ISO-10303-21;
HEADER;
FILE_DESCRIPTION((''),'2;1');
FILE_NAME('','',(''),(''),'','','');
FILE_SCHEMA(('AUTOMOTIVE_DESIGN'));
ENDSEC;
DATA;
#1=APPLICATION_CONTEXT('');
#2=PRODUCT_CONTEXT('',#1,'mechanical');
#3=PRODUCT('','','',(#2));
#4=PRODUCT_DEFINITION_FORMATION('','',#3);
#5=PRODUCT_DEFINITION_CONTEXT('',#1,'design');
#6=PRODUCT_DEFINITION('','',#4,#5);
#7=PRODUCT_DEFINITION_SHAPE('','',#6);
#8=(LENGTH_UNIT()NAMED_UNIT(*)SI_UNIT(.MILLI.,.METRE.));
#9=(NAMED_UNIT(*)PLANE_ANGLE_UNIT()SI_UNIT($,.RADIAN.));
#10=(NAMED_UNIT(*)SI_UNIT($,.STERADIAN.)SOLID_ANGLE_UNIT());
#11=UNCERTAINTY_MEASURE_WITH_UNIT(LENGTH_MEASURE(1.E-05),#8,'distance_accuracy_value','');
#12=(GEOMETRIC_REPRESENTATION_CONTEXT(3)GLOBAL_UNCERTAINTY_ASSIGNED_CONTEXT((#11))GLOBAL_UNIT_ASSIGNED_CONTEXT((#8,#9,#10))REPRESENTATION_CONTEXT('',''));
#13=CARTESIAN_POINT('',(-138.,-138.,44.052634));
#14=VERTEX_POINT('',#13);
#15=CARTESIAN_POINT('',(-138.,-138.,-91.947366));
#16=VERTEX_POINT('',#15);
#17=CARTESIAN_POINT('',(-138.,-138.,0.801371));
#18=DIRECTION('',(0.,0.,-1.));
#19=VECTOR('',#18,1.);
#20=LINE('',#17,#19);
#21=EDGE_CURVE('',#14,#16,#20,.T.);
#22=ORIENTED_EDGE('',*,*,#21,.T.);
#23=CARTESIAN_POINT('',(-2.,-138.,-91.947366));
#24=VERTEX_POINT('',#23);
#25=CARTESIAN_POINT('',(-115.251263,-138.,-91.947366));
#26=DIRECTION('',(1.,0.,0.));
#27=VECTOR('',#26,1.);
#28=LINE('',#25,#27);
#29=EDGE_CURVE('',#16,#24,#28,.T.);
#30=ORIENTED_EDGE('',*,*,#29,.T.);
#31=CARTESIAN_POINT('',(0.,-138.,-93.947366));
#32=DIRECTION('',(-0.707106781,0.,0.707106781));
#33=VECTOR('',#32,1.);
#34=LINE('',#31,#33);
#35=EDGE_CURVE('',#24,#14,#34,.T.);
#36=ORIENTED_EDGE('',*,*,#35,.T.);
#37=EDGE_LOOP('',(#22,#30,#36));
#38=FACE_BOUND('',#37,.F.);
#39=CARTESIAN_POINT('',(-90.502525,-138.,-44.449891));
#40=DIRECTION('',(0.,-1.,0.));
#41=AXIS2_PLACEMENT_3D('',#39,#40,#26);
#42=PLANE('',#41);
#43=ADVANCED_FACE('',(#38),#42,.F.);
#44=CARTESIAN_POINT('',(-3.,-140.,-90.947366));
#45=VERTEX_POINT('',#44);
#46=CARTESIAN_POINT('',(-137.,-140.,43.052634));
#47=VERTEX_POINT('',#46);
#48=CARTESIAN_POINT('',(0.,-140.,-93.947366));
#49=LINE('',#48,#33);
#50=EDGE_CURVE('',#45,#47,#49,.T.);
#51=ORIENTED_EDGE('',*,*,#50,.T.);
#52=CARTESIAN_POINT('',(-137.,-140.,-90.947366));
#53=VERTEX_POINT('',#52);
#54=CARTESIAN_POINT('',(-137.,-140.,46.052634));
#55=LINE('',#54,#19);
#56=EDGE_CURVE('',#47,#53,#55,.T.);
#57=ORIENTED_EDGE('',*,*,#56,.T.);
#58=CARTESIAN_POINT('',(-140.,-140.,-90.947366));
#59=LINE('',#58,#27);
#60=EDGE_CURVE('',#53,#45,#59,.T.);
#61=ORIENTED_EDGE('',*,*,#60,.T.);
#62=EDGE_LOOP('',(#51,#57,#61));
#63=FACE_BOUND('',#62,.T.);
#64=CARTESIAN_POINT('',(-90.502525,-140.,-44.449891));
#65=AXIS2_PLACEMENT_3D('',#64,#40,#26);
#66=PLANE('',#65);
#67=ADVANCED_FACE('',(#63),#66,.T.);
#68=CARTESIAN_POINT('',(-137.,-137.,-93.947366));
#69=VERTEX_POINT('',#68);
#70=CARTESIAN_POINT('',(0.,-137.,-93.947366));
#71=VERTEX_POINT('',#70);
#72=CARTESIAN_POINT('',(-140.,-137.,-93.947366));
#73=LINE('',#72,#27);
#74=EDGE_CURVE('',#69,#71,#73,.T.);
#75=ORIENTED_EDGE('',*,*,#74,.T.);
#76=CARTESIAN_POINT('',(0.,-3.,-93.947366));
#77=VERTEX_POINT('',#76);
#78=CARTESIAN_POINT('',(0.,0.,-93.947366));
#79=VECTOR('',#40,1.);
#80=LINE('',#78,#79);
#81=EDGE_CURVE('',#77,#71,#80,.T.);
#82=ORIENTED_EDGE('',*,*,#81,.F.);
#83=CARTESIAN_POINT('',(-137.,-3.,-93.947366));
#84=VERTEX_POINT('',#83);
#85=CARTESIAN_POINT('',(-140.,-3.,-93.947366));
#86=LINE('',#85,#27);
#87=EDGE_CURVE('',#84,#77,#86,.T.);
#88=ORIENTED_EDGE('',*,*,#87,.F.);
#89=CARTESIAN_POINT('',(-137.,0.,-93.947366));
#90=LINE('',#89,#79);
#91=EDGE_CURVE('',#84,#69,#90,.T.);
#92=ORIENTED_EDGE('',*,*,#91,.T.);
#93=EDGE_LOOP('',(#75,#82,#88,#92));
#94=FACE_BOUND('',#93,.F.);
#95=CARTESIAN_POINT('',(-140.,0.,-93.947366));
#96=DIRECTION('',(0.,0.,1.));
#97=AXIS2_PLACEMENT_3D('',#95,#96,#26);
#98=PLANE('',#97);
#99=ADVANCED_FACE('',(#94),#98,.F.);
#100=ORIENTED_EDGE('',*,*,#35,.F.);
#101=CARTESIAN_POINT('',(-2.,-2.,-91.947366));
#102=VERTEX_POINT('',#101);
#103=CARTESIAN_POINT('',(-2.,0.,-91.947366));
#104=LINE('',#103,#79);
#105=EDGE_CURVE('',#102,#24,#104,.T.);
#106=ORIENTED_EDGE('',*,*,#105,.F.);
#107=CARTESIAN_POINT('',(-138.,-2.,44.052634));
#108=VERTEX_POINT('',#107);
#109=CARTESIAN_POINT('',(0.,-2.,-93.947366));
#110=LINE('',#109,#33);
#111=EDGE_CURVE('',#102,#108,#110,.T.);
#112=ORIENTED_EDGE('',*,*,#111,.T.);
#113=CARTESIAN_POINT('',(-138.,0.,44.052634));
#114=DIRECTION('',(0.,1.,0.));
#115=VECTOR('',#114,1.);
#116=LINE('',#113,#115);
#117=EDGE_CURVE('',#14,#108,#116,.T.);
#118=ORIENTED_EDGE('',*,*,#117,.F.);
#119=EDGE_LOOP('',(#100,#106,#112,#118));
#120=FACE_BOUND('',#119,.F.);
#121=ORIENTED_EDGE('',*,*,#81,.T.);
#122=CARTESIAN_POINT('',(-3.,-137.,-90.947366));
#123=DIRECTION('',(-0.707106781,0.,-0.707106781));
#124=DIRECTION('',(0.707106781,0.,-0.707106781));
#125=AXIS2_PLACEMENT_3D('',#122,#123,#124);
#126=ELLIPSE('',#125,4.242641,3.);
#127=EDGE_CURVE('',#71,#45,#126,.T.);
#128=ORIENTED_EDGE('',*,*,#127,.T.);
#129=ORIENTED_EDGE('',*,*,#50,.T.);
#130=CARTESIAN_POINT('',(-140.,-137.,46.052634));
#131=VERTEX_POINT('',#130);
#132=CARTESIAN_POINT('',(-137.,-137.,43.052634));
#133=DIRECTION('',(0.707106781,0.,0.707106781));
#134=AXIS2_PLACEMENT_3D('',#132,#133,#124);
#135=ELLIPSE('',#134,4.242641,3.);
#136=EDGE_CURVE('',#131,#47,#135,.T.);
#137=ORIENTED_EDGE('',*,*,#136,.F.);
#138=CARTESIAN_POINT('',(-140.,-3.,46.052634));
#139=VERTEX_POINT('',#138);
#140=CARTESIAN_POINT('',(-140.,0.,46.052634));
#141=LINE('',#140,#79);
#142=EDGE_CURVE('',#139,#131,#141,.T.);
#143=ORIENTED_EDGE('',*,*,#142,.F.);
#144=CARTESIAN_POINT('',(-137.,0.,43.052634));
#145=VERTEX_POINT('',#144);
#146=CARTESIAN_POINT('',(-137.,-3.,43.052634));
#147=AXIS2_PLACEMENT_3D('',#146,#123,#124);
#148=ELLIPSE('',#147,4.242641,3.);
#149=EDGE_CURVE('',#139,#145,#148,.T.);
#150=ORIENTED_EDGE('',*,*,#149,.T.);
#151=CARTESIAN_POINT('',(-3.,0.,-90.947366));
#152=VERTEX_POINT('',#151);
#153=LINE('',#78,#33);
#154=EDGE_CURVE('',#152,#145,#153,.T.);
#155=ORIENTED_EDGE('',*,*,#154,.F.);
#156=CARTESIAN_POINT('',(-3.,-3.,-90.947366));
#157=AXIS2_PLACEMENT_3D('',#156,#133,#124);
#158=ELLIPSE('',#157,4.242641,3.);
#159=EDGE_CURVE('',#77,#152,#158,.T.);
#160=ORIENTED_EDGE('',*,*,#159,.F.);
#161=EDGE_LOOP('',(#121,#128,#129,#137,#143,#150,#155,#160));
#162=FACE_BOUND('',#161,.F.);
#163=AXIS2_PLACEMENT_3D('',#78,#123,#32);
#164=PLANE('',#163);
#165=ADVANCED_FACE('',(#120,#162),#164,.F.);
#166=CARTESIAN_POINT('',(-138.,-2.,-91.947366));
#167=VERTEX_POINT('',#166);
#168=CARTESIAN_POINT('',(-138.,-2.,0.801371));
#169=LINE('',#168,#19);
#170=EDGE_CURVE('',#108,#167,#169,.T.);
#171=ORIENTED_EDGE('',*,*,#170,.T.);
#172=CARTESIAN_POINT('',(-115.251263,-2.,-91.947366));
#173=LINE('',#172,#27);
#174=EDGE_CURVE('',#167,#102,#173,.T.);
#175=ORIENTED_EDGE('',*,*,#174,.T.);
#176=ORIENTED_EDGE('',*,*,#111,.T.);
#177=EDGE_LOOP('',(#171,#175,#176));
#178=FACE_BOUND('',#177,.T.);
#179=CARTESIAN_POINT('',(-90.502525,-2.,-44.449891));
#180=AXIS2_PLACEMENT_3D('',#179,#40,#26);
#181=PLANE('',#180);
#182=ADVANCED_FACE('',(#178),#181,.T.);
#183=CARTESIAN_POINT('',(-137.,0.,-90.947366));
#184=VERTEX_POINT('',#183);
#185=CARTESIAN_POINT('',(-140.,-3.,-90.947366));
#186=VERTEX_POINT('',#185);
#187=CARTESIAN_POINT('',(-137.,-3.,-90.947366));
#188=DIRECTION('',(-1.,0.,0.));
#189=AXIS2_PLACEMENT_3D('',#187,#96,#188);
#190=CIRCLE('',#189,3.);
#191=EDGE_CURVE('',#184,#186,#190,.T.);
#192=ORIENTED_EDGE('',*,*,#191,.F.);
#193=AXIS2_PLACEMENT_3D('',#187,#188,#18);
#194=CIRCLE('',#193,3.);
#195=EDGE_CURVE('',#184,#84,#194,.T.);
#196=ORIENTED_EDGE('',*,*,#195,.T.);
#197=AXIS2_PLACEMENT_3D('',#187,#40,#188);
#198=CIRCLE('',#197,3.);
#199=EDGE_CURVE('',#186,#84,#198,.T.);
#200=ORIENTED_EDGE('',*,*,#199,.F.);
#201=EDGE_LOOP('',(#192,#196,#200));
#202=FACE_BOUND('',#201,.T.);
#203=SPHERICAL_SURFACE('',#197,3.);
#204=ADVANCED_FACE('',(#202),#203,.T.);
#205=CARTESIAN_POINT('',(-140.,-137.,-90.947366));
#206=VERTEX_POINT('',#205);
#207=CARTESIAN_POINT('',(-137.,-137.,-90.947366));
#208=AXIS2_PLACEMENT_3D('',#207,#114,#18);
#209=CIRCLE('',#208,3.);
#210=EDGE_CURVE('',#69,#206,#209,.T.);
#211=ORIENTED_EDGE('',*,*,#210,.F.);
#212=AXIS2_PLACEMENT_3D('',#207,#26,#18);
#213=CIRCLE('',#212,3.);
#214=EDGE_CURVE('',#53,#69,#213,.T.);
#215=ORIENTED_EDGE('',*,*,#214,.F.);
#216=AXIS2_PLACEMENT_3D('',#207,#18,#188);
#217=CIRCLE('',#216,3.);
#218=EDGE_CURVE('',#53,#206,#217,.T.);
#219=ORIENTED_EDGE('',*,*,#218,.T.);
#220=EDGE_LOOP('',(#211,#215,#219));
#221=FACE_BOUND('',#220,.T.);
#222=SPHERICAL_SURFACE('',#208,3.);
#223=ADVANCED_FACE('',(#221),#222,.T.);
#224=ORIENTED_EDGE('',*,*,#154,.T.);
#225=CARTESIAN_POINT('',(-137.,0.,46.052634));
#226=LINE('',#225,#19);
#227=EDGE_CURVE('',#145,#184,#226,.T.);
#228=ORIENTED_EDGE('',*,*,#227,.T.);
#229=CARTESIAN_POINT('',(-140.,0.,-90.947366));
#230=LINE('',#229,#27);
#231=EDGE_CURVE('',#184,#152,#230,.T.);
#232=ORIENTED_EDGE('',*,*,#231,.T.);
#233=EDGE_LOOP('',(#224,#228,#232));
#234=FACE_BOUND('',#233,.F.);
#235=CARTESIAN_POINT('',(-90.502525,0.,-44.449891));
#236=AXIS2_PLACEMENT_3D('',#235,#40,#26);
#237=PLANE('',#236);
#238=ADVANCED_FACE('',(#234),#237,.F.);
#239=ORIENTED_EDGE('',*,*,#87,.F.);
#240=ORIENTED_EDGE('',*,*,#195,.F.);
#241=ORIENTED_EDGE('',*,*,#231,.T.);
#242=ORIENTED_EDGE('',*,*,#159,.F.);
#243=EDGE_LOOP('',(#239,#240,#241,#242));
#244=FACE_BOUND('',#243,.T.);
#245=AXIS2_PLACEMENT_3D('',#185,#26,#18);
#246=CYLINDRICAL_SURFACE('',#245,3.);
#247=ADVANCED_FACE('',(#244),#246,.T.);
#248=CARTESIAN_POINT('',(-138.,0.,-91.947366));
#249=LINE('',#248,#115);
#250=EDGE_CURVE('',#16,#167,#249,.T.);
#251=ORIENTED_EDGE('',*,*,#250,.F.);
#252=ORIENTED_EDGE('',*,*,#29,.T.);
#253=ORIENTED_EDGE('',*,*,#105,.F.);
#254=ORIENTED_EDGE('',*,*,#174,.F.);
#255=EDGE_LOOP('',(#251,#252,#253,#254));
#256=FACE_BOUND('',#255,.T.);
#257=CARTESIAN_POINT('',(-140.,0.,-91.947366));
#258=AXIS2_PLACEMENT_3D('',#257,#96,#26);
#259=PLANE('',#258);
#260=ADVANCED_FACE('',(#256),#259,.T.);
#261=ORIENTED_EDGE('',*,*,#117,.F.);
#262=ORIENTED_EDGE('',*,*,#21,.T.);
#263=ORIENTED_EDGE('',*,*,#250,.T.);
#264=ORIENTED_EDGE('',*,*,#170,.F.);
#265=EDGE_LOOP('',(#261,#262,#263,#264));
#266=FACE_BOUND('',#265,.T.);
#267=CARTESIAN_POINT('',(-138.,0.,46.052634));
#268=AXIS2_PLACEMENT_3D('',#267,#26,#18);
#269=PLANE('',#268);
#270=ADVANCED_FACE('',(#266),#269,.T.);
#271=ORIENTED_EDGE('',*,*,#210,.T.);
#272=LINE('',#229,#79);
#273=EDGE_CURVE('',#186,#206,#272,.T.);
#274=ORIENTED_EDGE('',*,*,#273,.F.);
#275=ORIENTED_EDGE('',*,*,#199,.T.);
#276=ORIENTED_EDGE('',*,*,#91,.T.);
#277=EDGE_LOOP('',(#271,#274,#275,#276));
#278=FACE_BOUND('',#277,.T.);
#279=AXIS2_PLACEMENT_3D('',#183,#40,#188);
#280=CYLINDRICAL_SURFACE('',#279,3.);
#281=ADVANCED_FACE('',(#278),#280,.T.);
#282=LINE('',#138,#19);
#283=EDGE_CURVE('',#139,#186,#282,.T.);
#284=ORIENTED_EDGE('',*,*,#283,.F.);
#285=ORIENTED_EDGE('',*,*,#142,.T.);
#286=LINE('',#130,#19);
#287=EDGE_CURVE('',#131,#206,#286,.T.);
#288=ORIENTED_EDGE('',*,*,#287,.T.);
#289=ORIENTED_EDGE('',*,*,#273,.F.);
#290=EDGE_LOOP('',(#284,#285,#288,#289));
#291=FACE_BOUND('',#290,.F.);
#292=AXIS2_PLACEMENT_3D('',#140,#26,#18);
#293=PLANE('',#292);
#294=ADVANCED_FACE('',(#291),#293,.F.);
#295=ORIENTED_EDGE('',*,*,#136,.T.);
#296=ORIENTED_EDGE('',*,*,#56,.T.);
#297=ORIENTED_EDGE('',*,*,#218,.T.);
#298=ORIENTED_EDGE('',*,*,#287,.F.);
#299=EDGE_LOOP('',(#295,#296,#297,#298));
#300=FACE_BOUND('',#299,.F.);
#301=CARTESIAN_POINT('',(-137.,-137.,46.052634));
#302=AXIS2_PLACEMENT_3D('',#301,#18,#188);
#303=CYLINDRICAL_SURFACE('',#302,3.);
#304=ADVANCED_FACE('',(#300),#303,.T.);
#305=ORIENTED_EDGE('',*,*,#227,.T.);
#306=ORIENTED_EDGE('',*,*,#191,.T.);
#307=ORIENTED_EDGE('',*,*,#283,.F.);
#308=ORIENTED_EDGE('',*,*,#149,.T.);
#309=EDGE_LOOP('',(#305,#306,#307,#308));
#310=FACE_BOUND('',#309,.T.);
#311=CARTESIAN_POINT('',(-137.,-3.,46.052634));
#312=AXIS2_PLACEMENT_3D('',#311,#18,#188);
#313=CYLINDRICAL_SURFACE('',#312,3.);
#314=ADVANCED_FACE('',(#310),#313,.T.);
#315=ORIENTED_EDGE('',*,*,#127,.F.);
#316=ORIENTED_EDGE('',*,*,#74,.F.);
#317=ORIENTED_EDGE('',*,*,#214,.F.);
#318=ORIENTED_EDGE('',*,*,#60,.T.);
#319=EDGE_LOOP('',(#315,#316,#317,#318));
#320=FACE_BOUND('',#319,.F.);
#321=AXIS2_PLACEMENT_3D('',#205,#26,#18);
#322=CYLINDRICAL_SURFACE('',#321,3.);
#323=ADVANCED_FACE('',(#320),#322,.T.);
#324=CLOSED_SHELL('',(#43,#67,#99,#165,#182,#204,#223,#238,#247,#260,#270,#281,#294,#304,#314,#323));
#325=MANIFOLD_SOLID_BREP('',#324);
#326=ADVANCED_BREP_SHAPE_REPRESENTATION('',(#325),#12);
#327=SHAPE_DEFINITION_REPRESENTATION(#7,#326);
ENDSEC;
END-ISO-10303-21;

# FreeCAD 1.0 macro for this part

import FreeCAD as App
import Part
import Sketcher


def edges_at(feature, points):
    """Names of the edges that pass closest to the given points."""
    edges = feature.Shape.Edges
    near = lambda p: min(range(len(edges)), key=lambda i: edges[i].distToShape(Part.Vertex(*p))[0])
    return sorted({f"Edge{near(p) + 1}" for p in points})


def faces_at(feature, points):
    """Names of the faces that lie closest to the given points."""
    faces = feature.Shape.Faces
    near = lambda p: min(range(len(faces)), key=lambda i: faces[i].distToShape(Part.Vertex(*p))[0])
    return sorted({f"Face{near(p) + 1}" for p in points})

doc = App.newDocument("Part")
body = doc.addObject("PartDesign::Body", "Body")

sketch1 = body.newObject("Sketcher::SketchObject", "Sketch")
sketch1.AttachmentSupport = (doc.getObject("XZ_Plane"), [""])
sketch1.MapMode = "FlatFace"
sketch1.addGeometry([
    Part.LineSegment(App.Vector(0, -94, 0), App.Vector(-140, 46, 0)),
    Part.LineSegment(App.Vector(-140, 46, 0), App.Vector(-140, -94, 0)),
    Part.LineSegment(App.Vector(-140, -94, 0), App.Vector(0, -94, 0)),
], False)
sketch1.addConstraint([
    Sketcher.Constraint("Coincident", 0, 2, 1, 1),
    Sketcher.Constraint("Coincident", 1, 2, 2, 1),
    Sketcher.Constraint("Coincident", 2, 2, 0, 1),
    Sketcher.Constraint("Vertical", 1),
    Sketcher.Constraint("Horizontal", 2),
    Sketcher.Constraint("PointOnObject", 2, 2, -2),
    Sketcher.Constraint("Equal", 2, 1),
    Sketcher.Constraint("DistanceX", 2, 1, 2, 2, 140.0),
    Sketcher.Constraint("DistanceY", -1, 1, 0, 2, 46.052634),
])
pad1 = body.newObject("PartDesign::Pad", "Pad")
pad1.Profile = sketch1
pad1.Length = 140
doc.recompute()

thickness = body.newObject("PartDesign::Thickness", "Thickness")
thickness.Base = (pad1, faces_at(pad1, [(-70, -70, -23.947)]))
thickness.Value = 2
thickness.Reversed = True
thickness.Join = "Arc"
doc.recompute()

fillet = body.newObject("PartDesign::Fillet", "Fillet")
fillet.Base = (thickness, edges_at(thickness, [
    (-140, -70, -93.947),
    (-140, 0, -23.947),
    (-70, 0, -93.947),
    (-70, -140, -93.947),
    (-140, -140, -23.947),
]))
fillet.Radius = 3

doc.recompute()
